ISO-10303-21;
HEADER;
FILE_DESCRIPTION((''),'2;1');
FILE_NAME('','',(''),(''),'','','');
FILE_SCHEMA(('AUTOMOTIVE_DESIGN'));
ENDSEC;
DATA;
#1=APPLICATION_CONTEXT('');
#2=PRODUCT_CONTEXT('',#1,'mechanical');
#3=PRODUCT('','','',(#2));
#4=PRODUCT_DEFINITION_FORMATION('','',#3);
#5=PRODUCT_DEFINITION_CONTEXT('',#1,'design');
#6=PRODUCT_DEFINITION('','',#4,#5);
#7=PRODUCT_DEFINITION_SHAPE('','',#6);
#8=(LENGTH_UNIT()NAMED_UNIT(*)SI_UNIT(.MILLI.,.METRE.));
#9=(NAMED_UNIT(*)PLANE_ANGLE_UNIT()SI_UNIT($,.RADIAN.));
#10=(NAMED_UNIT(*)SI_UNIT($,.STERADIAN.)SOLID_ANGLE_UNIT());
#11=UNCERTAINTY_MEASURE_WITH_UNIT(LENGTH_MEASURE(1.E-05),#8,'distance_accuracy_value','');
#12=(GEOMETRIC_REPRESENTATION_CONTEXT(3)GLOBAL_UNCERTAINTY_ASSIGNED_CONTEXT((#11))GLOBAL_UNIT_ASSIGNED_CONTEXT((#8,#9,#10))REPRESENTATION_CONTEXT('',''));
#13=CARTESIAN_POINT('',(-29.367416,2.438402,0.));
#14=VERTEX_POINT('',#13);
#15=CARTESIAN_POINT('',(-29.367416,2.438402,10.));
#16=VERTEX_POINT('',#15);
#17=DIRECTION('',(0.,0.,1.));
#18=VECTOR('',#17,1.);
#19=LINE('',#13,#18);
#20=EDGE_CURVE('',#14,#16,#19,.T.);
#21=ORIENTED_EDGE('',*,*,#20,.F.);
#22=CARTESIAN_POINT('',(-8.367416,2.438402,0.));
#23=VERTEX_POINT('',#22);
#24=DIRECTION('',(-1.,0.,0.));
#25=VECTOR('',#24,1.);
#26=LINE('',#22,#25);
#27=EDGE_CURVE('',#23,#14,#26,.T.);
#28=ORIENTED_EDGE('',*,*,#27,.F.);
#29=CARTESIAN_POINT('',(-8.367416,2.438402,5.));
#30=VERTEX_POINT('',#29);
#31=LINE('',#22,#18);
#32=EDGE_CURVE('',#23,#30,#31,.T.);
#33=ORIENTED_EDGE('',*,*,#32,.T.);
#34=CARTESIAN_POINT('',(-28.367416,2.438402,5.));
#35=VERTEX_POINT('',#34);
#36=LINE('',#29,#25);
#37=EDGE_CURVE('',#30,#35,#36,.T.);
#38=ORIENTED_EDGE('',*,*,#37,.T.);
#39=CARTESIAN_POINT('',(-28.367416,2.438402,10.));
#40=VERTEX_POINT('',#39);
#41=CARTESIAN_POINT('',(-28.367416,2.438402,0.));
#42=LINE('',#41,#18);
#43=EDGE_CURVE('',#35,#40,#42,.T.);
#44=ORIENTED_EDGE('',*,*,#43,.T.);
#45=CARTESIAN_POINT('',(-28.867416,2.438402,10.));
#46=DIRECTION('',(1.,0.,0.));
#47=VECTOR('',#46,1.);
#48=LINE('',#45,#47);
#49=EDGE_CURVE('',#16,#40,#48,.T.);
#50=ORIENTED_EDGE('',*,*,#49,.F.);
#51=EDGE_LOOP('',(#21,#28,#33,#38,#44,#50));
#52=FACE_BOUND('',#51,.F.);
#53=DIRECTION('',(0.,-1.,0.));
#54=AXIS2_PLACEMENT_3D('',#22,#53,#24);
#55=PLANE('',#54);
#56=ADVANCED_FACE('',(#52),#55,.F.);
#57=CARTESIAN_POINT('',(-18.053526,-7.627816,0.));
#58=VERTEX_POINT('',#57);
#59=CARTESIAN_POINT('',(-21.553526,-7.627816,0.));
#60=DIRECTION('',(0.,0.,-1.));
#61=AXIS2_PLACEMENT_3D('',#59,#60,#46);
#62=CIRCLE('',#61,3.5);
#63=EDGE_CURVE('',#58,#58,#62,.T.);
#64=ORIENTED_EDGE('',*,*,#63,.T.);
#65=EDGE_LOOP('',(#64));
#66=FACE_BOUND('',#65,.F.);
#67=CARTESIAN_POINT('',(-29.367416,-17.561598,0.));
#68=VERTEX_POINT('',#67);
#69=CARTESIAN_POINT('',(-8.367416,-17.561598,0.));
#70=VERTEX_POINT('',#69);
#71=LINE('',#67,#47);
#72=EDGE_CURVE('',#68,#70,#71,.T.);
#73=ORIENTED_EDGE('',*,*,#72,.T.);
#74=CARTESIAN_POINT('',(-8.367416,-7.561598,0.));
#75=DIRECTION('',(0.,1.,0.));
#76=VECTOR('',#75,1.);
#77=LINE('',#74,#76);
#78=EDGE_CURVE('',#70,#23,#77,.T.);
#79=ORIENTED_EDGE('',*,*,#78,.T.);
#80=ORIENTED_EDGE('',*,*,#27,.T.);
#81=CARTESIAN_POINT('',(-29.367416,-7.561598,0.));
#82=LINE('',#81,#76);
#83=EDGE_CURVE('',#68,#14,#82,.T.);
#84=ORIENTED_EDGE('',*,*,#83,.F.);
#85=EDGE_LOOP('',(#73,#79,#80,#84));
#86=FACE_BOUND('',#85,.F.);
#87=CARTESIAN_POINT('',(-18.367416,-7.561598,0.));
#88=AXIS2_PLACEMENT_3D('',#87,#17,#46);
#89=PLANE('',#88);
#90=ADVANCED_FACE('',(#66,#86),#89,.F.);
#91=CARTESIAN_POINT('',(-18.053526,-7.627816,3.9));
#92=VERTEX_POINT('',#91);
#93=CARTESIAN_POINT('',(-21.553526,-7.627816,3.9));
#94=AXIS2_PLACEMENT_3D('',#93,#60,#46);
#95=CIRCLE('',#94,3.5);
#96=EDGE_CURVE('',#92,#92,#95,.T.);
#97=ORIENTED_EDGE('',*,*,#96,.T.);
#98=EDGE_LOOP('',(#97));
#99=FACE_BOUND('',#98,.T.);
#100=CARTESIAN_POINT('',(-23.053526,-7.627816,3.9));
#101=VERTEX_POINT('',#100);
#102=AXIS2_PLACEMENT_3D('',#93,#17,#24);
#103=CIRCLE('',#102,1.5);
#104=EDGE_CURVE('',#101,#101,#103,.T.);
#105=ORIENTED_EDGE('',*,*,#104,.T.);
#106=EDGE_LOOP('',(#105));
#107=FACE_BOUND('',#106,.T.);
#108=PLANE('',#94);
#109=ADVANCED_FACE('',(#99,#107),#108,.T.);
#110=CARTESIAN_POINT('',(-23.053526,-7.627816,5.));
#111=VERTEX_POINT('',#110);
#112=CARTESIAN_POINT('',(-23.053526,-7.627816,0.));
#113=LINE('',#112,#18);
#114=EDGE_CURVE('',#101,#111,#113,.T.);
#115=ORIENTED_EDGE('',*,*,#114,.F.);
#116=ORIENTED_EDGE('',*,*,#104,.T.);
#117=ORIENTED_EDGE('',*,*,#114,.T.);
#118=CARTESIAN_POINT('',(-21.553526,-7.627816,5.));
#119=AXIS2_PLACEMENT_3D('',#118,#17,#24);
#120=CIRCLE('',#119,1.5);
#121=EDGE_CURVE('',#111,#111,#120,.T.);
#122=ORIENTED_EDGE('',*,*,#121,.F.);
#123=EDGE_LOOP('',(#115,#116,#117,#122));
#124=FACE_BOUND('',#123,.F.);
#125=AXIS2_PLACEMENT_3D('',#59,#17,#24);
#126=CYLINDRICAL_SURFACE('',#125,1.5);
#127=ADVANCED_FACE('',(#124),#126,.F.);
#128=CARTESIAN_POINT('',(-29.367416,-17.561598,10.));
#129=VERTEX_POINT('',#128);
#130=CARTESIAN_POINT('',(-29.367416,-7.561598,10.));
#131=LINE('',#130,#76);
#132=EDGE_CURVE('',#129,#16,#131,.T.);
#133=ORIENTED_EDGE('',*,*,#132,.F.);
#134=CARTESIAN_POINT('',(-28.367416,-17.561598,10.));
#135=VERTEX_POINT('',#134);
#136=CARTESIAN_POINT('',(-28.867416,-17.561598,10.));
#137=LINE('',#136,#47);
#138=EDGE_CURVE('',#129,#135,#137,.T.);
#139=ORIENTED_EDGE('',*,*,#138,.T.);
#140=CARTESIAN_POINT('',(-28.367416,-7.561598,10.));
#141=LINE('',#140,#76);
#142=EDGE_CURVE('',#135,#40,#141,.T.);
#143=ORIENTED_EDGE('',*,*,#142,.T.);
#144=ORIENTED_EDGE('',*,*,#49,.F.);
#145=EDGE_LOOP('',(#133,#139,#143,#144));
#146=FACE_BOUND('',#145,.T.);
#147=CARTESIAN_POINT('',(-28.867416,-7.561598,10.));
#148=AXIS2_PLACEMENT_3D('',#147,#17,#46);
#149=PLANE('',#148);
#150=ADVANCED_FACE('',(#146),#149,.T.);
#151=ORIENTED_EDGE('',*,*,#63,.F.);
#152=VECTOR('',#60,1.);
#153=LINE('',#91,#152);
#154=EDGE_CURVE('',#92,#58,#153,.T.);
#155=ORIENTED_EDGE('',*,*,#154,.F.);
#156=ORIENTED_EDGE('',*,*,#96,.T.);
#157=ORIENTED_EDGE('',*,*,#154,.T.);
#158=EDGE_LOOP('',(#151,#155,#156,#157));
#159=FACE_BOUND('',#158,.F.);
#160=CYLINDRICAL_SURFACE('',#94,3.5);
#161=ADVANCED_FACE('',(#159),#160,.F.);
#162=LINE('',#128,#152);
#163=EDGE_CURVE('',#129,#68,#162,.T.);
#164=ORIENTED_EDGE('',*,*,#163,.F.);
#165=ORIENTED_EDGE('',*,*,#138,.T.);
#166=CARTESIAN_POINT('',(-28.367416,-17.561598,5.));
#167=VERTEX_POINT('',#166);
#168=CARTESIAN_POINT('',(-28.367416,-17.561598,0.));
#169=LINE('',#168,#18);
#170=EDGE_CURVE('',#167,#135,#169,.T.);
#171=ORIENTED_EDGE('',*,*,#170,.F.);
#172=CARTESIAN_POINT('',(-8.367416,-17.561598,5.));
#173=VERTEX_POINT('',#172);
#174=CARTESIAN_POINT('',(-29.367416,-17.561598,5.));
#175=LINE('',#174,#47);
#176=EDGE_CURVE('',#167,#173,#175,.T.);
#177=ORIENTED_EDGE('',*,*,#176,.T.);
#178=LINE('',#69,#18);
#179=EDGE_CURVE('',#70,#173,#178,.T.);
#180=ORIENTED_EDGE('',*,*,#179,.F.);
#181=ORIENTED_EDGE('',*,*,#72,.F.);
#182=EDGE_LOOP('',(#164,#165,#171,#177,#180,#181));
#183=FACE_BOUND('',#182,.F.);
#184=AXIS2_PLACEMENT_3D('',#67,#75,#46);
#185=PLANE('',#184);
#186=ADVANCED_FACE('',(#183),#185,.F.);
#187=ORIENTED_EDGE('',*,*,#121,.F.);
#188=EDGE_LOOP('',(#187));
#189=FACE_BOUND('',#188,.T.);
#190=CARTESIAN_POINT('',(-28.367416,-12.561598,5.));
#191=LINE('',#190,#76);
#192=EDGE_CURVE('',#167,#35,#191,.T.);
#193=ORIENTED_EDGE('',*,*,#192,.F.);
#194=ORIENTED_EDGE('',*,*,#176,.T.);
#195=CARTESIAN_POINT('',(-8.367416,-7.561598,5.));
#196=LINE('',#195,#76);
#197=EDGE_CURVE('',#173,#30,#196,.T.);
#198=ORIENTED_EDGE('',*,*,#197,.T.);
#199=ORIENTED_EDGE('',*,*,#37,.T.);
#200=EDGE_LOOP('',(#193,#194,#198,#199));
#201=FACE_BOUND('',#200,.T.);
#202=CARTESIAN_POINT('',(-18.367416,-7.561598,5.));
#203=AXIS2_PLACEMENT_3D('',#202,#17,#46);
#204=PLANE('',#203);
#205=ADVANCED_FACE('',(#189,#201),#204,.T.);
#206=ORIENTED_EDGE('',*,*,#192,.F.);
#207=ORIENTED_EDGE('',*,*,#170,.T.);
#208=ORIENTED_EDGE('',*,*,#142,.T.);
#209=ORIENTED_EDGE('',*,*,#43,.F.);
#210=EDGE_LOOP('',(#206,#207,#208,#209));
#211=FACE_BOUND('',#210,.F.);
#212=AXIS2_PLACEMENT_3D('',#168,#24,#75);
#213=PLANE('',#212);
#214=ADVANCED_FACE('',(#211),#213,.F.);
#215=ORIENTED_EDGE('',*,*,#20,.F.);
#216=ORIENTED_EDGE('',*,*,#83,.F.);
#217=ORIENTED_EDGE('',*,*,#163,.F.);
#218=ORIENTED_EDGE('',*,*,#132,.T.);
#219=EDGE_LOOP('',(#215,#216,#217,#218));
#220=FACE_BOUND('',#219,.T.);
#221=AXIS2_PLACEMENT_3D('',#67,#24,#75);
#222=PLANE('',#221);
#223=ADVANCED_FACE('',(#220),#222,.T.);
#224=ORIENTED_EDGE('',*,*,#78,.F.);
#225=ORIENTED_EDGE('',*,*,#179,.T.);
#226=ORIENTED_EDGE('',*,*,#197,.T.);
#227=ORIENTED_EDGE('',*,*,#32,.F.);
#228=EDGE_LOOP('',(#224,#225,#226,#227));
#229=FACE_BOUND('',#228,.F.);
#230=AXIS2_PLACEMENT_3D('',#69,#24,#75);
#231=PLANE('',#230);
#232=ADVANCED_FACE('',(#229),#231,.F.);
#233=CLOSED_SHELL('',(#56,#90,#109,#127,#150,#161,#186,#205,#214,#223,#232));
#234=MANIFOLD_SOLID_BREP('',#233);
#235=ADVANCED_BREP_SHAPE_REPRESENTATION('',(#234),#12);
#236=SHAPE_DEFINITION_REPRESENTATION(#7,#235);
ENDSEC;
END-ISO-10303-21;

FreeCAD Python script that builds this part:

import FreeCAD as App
import Part
import Sketcher
from FreeCAD import Vector


def add_polygon(sketch, points):
    """Adds a closed chain of lines whose ends are joined by coincident constraints."""
    first, n = sketch.GeometryCount, len(points)
    for a, b in zip(points, points[1:] + points[:1]):
        sketch.addGeometry(Part.LineSegment(App.Vector(*a, 0), App.Vector(*b, 0)), False)
    for i in range(n):
        sketch.addConstraint(Sketcher.Constraint("Coincident", first + i, 2, first + (i + 1) % n, 1))

doc = App.newDocument("Part")
params = doc.addObject("Spreadsheet::Sheet", "Params")
for row, (alias, value) in enumerate([
    ("sketch1_width", "1 mm"),
    ("sketch1_height", "20 mm"),
    ("pad1_length", "10 mm"),
    ("sketch2_width", "21 mm"),
    ("sketch2_height", "20 mm"),
    ("pad2_length", "5 mm"),
    ("sketch3_diameter", "3 mm"),
    ("hole_diameter", "3 mm"),
    ("hole_cbore_diameter", "7 mm"),
    ("hole_cbore_depth", "3.9 mm"),
], start=1):
    params.set(f"A{row}", alias)
    params.set(f"B{row}", "=" + value)
    params.setAlias(f"B{row}", alias)

body = doc.addObject("PartDesign::Body", "Body")

# Sketch on XY plane
sketch1 = body.newObject("Sketcher::SketchObject", "Sketch")
sketch1.AttachmentSupport = (doc.getObject("XY_Plane"), [""])
sketch1.MapMode = "FlatFace"
add_polygon(sketch1, [(-29.4, 2.4), (-29.4, -17.6), (-28.4, -17.6), (-28.4, 2.4)])  # lines 0-3
sketch1.addConstraint([
    Sketcher.Constraint("Vertical", 0),
    Sketcher.Constraint("Horizontal", 1),
    Sketcher.Constraint("Vertical", 2),
    Sketcher.Constraint("Horizontal", 3),
    Sketcher.Constraint("DistanceX", 1, 1, 1, 2, 1.0),
    Sketcher.Constraint("DistanceY", 0, 2, 0, 1, 20.0),
    Sketcher.Constraint("DistanceX", 0, 2, -1, 1, 29.367416),
    Sketcher.Constraint("DistanceY", 0, 2, -1, 1, 17.561598),
])
sketch1.setExpression("Constraints[8]", "Params.sketch1_width")
sketch1.setExpression("Constraints[9]", "Params.sketch1_height")
pad1 = body.newObject("PartDesign::Pad", "Pad")
pad1.Profile = sketch1
pad1.setExpression("Length", "Params.pad1_length")

# Sketch on XY plane
sketch2 = body.newObject("Sketcher::SketchObject", "Sketch001")
sketch2.AttachmentSupport = (doc.getObject("XY_Plane"), [""])
sketch2.MapMode = "FlatFace"
add_polygon(sketch2, [(-8, -18), (-8, 2), (-29, 2), (-29, -18)])  # lines 0-3
sketch2.addConstraint([
    Sketcher.Constraint("Vertical", 0),
    Sketcher.Constraint("Horizontal", 1),
    Sketcher.Constraint("Vertical", 2),
    Sketcher.Constraint("Horizontal", 3),
    Sketcher.Constraint("DistanceX", 1, 2, 1, 1, 21.0),
    Sketcher.Constraint("DistanceY", 0, 1, 0, 2, 20.0),
    Sketcher.Constraint("DistanceX", 0, 2, -1, 1, 8.367416),
    Sketcher.Constraint("DistanceY", -1, 1, 0, 2, 2.438402),
])
sketch2.setExpression("Constraints[8]", "Params.sketch2_width")
sketch2.setExpression("Constraints[9]", "Params.sketch2_height")
pad2 = body.newObject("PartDesign::Pad", "Pad001")
pad2.Profile = sketch2
pad2.setExpression("Length", "Params.pad2_length")

# Sketch on XY plane
sketch3 = body.newObject("Sketcher::SketchObject", "Sketch002")
sketch3.AttachmentSupport = (doc.getObject("XY_Plane"), [""])
sketch3.MapMode = "FlatFace"
sketch3.addGeometry(Part.Circle(Vector(-21.6, -7.6, 0), Vector(0, 0, 1), 1.5), False)
sketch3.addConstraint([
    Sketcher.Constraint("Diameter", 0, 3.0),
    Sketcher.Constraint("DistanceX", 0, 3, -1, 1, 21.553526),
    Sketcher.Constraint("DistanceY", 0, 3, -1, 1, 7.627816),
])
sketch3.setExpression("Constraints[0]", "Params.sketch3_diameter")
doc.recompute()
hole = body.newObject("PartDesign::Hole", "Hole")
hole.Profile = sketch3
hole.ThreadType = "None"
hole.setExpression("Diameter", "Params.hole_diameter")
hole.DepthType = "ThroughAll"
hole.HoleCutType = "Counterbore"
hole.setExpression("HoleCutDiameter", "Params.hole_cbore_diameter")
hole.setExpression("HoleCutDepth", "Params.hole_cbore_depth")
hole.Reversed = True

doc.recompute()
